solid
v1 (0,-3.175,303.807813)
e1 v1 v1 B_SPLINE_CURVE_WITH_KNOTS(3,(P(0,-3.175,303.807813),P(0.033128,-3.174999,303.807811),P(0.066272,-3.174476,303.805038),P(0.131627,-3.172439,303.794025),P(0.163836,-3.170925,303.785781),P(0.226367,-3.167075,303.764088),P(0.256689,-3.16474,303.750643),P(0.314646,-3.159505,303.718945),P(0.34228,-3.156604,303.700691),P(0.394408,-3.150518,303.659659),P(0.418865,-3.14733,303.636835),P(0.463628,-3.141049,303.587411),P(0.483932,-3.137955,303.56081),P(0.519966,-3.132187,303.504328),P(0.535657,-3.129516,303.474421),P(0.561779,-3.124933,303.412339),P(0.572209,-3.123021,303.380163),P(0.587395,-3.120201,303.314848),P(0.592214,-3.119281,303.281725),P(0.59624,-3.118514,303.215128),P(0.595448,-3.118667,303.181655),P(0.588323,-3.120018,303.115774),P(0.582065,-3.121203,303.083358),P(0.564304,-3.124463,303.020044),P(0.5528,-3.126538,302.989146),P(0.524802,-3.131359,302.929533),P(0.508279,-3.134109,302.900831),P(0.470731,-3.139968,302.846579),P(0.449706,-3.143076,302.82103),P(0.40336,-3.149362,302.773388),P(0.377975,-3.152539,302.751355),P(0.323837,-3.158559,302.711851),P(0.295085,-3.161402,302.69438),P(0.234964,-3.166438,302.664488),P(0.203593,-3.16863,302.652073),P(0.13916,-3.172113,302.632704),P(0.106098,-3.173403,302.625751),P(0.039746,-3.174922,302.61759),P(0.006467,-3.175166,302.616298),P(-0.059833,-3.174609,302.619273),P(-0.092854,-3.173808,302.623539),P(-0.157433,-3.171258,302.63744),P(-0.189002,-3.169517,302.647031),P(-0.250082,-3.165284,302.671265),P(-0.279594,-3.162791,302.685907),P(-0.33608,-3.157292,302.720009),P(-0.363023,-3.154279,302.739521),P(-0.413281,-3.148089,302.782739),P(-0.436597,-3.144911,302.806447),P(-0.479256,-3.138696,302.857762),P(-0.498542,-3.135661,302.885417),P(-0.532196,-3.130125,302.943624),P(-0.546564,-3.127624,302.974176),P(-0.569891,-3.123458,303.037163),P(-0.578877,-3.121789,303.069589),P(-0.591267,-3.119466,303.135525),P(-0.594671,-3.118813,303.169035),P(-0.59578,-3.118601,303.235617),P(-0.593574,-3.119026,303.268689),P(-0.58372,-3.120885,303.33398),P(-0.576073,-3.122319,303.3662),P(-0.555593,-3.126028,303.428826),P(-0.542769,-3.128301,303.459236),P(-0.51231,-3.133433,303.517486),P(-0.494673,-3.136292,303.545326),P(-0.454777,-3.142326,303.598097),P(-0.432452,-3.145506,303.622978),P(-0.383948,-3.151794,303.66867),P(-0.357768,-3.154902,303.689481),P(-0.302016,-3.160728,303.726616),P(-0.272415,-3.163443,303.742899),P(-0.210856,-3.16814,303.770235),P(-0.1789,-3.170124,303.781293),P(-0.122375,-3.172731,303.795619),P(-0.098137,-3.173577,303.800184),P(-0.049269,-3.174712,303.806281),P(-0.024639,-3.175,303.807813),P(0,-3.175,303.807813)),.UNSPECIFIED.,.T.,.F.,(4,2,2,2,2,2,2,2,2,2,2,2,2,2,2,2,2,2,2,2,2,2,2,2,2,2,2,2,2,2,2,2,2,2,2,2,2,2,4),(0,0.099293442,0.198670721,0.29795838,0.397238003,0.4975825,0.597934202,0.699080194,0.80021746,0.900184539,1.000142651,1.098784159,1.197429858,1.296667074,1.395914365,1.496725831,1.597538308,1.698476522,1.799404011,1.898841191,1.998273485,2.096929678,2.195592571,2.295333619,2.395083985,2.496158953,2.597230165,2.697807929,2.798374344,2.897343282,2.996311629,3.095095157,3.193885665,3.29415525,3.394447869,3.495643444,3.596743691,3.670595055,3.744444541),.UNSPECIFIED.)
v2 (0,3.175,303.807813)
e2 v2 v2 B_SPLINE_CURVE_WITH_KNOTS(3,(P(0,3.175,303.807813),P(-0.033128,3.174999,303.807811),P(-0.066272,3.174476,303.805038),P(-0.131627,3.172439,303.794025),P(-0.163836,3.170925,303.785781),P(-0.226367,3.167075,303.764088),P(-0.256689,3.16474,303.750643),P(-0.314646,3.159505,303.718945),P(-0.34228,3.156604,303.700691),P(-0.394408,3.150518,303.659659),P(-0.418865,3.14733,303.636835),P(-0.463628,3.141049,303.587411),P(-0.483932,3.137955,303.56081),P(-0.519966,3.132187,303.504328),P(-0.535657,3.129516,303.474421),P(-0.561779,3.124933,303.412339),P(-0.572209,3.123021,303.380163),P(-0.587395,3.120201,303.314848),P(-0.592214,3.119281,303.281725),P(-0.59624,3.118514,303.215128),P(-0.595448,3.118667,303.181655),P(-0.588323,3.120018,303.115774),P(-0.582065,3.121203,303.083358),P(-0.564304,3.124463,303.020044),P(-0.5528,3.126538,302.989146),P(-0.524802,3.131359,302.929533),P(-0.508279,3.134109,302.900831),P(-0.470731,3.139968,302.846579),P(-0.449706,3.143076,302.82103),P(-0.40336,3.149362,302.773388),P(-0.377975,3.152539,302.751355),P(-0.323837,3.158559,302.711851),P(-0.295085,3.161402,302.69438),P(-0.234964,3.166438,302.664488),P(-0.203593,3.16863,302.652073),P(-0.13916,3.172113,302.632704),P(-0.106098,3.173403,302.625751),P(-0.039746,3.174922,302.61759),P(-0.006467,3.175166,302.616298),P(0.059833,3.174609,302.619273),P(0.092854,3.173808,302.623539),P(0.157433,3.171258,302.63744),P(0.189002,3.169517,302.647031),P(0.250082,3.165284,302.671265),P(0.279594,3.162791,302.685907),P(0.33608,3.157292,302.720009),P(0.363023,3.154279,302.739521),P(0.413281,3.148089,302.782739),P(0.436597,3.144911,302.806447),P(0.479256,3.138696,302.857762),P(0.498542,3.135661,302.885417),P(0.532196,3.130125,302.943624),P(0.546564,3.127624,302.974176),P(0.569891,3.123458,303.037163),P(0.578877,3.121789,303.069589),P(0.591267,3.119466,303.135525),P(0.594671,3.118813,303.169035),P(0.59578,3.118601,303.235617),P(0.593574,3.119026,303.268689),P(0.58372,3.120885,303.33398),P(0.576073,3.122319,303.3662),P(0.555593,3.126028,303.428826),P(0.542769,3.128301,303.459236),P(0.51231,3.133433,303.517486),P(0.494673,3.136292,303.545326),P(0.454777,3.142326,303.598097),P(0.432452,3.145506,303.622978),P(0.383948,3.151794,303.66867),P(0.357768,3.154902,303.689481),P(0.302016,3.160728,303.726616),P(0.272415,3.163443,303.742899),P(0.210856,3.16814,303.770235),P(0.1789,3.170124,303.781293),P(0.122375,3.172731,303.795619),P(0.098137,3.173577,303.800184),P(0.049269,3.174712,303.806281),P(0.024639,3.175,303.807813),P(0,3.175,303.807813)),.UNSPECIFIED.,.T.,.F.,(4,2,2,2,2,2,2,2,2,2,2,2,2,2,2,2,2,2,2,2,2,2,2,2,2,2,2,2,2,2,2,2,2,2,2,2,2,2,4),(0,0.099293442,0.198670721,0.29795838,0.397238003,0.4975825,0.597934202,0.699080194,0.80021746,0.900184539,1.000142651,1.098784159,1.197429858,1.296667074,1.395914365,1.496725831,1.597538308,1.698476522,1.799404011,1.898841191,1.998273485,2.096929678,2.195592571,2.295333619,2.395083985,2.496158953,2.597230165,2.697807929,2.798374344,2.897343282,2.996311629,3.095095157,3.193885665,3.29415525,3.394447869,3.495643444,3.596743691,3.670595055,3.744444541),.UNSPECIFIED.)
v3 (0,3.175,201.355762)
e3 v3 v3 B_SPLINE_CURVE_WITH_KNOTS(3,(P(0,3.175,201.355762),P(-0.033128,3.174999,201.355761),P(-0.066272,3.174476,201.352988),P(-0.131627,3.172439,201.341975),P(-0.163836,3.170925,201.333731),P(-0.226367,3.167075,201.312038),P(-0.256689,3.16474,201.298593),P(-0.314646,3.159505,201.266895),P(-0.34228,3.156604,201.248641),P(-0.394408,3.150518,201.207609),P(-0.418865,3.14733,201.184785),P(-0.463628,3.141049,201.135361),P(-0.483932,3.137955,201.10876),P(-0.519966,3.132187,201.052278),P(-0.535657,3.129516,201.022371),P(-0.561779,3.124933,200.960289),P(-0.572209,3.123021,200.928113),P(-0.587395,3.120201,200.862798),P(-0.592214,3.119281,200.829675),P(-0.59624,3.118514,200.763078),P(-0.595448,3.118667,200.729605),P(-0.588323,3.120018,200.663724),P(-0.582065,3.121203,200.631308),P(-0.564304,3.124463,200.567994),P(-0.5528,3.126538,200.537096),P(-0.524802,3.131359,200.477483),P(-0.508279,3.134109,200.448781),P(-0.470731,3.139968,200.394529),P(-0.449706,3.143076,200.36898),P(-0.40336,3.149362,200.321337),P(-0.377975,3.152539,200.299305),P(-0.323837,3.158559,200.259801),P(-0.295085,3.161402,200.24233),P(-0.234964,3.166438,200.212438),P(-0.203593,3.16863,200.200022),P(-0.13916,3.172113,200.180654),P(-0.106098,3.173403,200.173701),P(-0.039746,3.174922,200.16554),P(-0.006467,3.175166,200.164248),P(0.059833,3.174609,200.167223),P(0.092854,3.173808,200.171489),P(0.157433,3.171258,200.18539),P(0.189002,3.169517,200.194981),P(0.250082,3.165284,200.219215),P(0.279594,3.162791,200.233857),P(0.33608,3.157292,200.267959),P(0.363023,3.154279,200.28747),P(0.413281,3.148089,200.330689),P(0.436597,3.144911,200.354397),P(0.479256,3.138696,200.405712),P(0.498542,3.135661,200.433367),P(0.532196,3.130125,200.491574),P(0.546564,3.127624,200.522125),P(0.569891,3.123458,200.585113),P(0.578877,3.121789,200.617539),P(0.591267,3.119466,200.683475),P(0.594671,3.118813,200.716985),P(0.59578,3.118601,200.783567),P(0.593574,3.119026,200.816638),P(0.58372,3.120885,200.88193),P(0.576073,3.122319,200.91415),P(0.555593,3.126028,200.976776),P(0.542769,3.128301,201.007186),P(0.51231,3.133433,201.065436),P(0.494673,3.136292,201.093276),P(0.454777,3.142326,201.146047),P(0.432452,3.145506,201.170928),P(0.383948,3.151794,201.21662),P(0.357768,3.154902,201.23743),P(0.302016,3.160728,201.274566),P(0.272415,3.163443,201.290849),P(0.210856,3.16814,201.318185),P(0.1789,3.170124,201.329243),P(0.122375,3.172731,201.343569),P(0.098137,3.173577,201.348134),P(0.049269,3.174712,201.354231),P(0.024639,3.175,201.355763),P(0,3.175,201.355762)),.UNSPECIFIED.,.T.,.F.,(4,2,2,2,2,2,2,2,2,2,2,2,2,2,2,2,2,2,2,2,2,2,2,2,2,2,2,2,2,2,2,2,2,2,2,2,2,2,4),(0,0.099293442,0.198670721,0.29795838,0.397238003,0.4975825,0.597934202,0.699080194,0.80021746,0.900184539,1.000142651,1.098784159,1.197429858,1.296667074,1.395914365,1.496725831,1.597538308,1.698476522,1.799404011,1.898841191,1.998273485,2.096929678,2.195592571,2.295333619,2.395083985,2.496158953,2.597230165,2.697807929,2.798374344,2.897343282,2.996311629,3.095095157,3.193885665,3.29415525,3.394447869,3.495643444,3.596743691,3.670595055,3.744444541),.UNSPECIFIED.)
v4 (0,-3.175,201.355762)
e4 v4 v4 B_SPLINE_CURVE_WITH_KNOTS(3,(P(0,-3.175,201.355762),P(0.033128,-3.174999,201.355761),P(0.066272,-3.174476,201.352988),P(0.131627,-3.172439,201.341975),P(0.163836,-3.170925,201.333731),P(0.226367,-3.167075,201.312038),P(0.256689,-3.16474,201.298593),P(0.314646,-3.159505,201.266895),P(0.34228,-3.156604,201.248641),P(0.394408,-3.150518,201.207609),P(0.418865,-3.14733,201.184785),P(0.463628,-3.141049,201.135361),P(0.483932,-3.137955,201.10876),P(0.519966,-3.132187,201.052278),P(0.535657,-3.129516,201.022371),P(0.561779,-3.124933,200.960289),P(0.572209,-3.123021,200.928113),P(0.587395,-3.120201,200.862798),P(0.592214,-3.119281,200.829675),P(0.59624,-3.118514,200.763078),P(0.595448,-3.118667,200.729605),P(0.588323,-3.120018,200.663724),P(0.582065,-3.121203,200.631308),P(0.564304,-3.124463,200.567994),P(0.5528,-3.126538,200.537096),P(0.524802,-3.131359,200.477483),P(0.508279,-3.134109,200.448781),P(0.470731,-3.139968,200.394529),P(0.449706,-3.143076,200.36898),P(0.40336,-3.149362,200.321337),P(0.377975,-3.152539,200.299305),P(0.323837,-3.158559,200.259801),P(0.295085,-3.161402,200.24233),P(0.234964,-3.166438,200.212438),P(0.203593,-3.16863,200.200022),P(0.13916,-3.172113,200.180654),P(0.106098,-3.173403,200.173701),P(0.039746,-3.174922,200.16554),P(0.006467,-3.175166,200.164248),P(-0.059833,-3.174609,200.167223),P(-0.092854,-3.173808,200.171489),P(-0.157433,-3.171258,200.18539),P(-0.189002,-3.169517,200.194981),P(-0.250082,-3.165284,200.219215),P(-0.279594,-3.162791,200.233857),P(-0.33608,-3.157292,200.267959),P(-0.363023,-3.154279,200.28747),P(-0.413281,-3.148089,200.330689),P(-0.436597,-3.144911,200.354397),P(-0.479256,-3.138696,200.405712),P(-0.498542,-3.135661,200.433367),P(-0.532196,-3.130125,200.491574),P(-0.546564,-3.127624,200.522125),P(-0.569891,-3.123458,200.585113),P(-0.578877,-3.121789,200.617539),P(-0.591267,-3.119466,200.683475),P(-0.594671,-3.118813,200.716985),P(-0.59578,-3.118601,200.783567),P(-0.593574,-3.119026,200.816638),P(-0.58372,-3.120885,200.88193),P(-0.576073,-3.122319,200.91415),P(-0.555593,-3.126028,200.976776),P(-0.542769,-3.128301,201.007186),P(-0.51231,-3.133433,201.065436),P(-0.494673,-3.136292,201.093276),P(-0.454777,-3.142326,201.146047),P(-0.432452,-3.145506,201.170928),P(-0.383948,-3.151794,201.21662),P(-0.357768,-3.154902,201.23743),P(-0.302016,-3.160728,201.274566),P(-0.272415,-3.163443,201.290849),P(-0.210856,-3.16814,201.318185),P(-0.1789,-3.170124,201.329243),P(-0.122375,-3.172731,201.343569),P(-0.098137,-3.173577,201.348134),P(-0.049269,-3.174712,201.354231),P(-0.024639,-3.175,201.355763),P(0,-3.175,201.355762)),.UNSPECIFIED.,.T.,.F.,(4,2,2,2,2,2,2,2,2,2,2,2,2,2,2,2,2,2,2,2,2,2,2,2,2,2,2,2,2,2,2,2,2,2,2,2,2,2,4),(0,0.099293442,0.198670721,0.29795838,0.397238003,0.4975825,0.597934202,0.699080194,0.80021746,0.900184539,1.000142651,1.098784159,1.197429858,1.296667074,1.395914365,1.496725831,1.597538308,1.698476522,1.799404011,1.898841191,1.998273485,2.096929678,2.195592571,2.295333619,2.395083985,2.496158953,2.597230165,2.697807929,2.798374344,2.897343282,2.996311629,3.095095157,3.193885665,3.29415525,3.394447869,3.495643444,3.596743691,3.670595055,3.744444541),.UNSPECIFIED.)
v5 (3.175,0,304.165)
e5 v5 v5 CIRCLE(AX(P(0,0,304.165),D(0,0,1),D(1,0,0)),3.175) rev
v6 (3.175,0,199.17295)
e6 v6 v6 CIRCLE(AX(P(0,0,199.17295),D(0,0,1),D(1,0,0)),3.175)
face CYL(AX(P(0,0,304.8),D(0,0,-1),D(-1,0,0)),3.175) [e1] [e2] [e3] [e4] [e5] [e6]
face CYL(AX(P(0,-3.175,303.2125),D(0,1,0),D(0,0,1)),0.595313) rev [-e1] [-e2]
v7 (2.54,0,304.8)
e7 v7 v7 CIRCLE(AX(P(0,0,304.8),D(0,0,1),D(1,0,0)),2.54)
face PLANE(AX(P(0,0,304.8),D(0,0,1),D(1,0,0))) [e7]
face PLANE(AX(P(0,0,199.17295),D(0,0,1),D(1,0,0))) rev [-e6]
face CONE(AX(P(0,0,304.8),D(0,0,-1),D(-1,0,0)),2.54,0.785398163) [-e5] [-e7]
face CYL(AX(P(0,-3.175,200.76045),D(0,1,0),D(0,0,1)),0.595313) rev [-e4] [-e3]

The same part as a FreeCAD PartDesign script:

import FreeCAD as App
import Part
import Sketcher
from FreeCAD import Vector
Q = App.Units.Quantity


def edges_at(feature, points):
    """Names of the edges that pass closest to the given points."""
    edges = feature.Shape.Edges
    near = lambda p: min(range(len(edges)), key=lambda i: edges[i].distToShape(Part.Vertex(*p))[0])
    return sorted({f"Edge{near(p) + 1}" for p in points})

doc = App.newDocument("Part")
body = doc.addObject("PartDesign::Body", "Body")

# Sketch on XY plane
sketch1 = body.newObject("Sketcher::SketchObject", "Sketch")
sketch1.AttachmentSupport = (doc.getObject("XY_Plane"), [""])
sketch1.MapMode = "FlatFace"
sketch1.addGeometry(Part.Circle(Vector(0, 0, 0), Vector(0, 0, 1), 3.175), False)
sketch1.addConstraint(Sketcher.Constraint("Coincident", 0, 3, -1, 1))
sketch1.addConstraint(Sketcher.Constraint("Diameter", 0, Q("0.25 in")))
pad1 = body.newObject("PartDesign::Pad", "Pad")
pad1.Profile = sketch1
pad1.Length = Q("24 in")
pad1.Midplane = True
doc.recompute()

chamfer = body.newObject("PartDesign::Chamfer", "Chamfer")
chamfer.Base = (pad1, edges_at(pad1, [(-3.175, 0, -304.8), (-3.175, 0, 304.8)]))
chamfer.Size = Q("0.025 in")

# Sketch on XY plane
sketch2 = body.newObject("Sketcher::SketchObject", "Sketch001")
sketch2.AttachmentSupport = (doc.getObject("XY_Plane"), [""])
sketch2.MapMode = "FlatFace"
sketch2.AttachmentOffset = App.Placement(Vector(0, 0, 199.17295), App.Rotation())
sketch2.addGeometry(Part.Circle(Vector(0, 0, 0), Vector(0, 0, 1), 3.175), False)
sketch2.addConstraint(Sketcher.Constraint("Coincident", 0, 3, -1, 1))
sketch2.addConstraint(Sketcher.Constraint("Diameter", 0, Q("0.25 in")))
pocket1 = body.newObject("PartDesign::Pocket", "Pocket")
pocket1.Profile = sketch2
pocket1.Type = "ThroughAll"

# Sketch on XZ plane
sketch3 = body.newObject("Sketcher::SketchObject", "Sketch002")
sketch3.AttachmentSupport = (doc.getObject("XZ_Plane"), [""])
sketch3.MapMode = "FlatFace"
sketch3.addGeometry(Part.Circle(Vector(0, 200.76045, 0), Vector(0, 0, 1), 0.595313), False)
sketch3.addGeometry(Part.Circle(Vector(0, 303.2125, 0), Vector(0, 0, 1), 0.595313), False)
sketch3.addConstraint(Sketcher.Constraint("Equal", 0, 1))
sketch3.addConstraint(Sketcher.Constraint("PointOnObject", 0, 3, -2))
sketch3.addConstraint(Sketcher.Constraint("PointOnObject", 1, 3, -2))
sketch3.addConstraint(Sketcher.Constraint("Diameter", 0, Q("0.046875 in")))
sketch3.addConstraint(Sketcher.Constraint("DistanceY", -1, 1, 1, 3, Q("11.9375 in")))
sketch3.addConstraint(Sketcher.Constraint("DistanceY", -1, 1, 0, 3, 200.76045))
pocket2 = body.newObject("PartDesign::Pocket", "Pocket001")
pocket2.Profile = sketch3
pocket2.Type = "ThroughAll"
pocket2.Midplane = True

doc.recompute()
